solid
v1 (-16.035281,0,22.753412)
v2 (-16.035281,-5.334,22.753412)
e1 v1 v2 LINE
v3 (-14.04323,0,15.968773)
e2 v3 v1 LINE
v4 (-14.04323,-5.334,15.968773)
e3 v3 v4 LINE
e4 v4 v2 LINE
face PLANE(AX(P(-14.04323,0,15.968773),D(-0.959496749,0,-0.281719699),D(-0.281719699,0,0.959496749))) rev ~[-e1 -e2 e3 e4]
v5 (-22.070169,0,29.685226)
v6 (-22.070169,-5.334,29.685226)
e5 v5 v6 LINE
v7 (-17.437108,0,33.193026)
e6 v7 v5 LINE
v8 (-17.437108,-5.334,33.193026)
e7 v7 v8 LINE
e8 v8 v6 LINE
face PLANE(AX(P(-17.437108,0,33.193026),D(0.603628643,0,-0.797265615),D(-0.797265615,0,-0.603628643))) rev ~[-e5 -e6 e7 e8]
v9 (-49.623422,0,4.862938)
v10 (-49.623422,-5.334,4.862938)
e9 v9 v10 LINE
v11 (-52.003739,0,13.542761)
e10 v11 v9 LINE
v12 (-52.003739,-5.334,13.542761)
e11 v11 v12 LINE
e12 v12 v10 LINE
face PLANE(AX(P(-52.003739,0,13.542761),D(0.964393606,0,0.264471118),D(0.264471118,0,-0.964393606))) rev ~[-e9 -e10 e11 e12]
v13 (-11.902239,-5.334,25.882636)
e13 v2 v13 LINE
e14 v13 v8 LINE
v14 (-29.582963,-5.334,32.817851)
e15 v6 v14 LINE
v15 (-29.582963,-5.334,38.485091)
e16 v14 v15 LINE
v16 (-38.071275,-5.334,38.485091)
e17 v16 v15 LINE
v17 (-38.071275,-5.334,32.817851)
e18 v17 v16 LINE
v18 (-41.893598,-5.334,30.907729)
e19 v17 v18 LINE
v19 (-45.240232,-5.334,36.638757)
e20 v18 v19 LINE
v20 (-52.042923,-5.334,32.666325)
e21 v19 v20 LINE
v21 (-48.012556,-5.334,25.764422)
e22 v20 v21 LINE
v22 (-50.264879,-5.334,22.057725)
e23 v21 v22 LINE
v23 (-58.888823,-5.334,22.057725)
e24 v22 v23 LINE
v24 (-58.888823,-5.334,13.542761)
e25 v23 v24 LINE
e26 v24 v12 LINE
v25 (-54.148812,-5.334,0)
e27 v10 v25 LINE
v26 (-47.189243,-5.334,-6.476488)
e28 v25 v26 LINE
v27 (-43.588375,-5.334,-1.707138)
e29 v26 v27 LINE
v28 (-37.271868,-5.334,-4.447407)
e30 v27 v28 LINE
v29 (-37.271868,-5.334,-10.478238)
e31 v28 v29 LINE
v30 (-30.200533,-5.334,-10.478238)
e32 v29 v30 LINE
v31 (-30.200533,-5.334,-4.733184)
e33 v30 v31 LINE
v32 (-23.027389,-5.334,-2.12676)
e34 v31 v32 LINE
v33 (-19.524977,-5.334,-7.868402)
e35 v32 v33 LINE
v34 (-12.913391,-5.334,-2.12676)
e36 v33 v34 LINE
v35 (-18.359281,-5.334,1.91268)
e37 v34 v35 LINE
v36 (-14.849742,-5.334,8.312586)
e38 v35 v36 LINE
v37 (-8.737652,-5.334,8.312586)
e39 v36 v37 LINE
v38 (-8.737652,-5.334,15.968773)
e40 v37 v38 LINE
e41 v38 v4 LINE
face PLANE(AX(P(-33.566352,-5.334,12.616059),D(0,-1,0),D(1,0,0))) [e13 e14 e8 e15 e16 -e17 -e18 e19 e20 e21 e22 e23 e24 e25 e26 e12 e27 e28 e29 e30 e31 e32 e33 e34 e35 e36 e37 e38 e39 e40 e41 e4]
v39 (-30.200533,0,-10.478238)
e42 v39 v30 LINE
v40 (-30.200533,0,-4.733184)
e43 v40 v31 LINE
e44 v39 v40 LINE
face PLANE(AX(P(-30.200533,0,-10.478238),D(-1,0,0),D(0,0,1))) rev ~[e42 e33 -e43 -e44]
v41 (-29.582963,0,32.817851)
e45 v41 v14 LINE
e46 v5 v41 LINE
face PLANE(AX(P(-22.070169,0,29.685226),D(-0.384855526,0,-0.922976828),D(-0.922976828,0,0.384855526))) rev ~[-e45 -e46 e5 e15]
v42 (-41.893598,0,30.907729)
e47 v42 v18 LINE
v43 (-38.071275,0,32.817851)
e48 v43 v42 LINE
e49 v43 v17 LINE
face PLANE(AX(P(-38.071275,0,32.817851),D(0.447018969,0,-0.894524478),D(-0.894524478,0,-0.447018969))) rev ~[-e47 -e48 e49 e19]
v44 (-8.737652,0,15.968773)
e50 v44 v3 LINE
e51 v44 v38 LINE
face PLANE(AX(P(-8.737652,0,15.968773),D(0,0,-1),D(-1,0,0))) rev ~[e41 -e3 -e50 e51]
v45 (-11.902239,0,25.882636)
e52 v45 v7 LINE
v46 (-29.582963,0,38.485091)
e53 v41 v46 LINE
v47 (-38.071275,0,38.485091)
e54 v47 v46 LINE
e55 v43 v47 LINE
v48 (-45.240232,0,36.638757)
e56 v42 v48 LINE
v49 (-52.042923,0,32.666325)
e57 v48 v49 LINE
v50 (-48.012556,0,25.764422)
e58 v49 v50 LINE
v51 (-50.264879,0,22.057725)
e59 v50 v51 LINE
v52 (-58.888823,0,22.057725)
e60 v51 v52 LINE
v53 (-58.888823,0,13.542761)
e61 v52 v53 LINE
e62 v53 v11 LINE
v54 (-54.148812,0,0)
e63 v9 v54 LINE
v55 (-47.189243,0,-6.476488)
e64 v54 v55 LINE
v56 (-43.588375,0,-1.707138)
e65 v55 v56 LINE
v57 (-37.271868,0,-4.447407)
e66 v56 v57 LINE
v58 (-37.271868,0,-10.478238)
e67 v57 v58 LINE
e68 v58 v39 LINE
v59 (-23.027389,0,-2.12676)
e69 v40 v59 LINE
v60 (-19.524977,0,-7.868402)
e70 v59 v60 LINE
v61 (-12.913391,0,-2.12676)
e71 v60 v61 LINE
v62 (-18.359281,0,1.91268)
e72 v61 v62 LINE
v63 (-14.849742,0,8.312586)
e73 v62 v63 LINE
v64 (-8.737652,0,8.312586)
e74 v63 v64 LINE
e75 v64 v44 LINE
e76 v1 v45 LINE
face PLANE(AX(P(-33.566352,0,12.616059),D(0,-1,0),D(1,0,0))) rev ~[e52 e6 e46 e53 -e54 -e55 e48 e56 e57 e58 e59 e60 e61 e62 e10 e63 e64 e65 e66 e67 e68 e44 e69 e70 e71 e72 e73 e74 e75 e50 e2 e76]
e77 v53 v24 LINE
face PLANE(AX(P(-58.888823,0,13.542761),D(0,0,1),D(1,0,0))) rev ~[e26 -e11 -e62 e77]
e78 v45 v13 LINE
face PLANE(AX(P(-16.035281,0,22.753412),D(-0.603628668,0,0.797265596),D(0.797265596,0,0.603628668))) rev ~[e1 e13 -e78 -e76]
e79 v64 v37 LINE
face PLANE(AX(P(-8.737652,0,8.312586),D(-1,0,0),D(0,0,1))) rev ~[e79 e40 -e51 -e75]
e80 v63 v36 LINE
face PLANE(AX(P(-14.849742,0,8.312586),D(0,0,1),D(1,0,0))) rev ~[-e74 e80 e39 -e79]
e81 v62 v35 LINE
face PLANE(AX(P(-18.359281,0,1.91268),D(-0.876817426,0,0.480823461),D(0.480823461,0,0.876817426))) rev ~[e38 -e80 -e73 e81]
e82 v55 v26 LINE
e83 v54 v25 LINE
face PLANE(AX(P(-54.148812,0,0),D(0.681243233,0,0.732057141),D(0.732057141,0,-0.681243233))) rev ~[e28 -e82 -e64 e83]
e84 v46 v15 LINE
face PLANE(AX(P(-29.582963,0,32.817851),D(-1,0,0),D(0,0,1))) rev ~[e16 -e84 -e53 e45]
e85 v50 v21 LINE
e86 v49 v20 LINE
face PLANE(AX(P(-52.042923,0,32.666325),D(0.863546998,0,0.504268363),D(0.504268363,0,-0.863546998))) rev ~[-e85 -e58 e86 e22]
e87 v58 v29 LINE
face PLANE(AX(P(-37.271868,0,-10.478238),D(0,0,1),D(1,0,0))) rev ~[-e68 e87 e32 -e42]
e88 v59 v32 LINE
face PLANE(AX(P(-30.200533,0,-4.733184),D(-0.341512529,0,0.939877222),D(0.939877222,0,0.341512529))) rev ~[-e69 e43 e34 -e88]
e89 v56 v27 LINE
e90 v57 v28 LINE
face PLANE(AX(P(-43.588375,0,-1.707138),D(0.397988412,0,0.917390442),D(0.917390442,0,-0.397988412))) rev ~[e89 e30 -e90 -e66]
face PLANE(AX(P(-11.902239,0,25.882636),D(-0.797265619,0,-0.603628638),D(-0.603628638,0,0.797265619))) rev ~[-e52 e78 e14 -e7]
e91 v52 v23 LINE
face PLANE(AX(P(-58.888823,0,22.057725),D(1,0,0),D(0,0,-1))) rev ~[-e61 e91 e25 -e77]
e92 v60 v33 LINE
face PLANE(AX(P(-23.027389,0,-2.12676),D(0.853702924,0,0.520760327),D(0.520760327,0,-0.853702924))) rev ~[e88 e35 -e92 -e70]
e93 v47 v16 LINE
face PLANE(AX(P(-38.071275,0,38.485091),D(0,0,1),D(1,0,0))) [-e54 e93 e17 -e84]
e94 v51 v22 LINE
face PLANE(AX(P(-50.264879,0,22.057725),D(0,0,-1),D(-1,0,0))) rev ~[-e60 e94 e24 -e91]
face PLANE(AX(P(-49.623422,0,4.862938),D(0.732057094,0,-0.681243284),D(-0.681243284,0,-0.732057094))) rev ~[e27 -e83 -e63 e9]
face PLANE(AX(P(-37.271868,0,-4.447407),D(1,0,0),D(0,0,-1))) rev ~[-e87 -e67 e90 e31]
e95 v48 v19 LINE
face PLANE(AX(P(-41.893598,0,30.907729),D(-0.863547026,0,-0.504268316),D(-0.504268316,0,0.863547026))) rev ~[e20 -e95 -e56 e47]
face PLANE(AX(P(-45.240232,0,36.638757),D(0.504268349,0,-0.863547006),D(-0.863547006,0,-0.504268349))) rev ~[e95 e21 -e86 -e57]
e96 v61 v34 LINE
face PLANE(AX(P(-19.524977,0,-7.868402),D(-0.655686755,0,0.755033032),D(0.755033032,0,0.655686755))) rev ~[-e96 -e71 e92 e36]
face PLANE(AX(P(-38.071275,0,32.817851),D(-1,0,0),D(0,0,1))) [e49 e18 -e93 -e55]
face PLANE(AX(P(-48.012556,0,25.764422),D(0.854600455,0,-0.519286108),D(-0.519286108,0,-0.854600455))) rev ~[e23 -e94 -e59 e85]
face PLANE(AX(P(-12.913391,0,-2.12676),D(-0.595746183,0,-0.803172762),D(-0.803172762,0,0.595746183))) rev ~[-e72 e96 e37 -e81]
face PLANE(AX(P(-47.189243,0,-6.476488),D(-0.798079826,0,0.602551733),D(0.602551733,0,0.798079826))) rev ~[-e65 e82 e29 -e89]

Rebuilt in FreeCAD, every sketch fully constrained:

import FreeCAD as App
import Part
import Sketcher
from FreeCAD import Vector
Q = App.Units.Quantity


def add_polygon(sketch, points):
    """Adds a closed chain of lines whose ends are joined by coincident constraints."""
    first, n = sketch.GeometryCount, len(points)
    for a, b in zip(points, points[1:] + points[:1]):
        sketch.addGeometry(Part.LineSegment(App.Vector(*a, 0), App.Vector(*b, 0)), False)
    for i in range(n):
        sketch.addConstraint(Sketcher.Constraint("Coincident", first + i, 2, first + (i + 1) % n, 1))

doc = App.newDocument("Part")
body = doc.addObject("PartDesign::Body", "Body")

sketch1 = doc.addObject("Sketcher::SketchObject", "Sketch")
body.addObject(sketch1)
sketch1.AttachmentSupport = (doc.XZ_Plane, [""])
sketch1.MapMode = "FlatFace"
add_polygon(sketch1, [(-22.070169, 29.685226), (-29.582963, 32.817851), (-29.582963, 38.485091), (-38.071275, 38.485091), (-38.071275, 32.817851), (-41.893598, 30.907729), (-45.240232, 36.638757), (-52.042923, 32.666325), (-48.012556, 25.764422), (-50.264879, 22.057725), (-58.888823, 22.057725), (-58.888823, 13.542761), (-52.003739, 13.542761), (-49.623422, 4.862938), (-54.148812, 0), (-47.189243, -6.476488), (-43.588375, -1.707138), (-37.271868, -4.447407), (-37.271868, -10.478238), (-30.200533, -10.478238), (-30.200533, -4.733184), (-23.027389, -2.12676), (-19.524977, -7.868402), (-12.913391, -2.12676), (-18.359281, 1.91268), (-14.849742, 8.312586), (-8.737652, 8.312586), (-8.737652, 15.968773), (-14.04323, 15.968773), (-16.035281, 22.753412), (-11.902239, 25.882636), (-17.437108, 33.193026)])
sketch1.addConstraint([
    Sketcher.Constraint("Vertical", 1),
    Sketcher.Constraint("Horizontal", 2),
    Sketcher.Constraint("Vertical", 3),
    Sketcher.Constraint("Horizontal", 9),
    Sketcher.Constraint("Vertical", 10),
    Sketcher.Constraint("Horizontal", 11),
    Sketcher.Constraint("Vertical", 17),
    Sketcher.Constraint("Horizontal", 18),
    Sketcher.Constraint("Vertical", 19),
    Sketcher.Constraint("Horizontal", 25),
    Sketcher.Constraint("Vertical", 26),
    Sketcher.Constraint("Horizontal", 27),
    Sketcher.Constraint("PointOnObject", 13, 2, -1),
    Sketcher.Constraint("DistanceX", 21, 2, -1, 1, Q("0.7686999 in")),
    Sketcher.Constraint("Distance", 16, 6.885298),
    Sketcher.Constraint("Distance", 20, 7.632001),
    Sketcher.Constraint("DistanceX", 25, 1, 25, 2, 6.11209),
    Sketcher.Constraint("DistanceY", 1, 1, 1, 2, 5.66724),
    Sketcher.Constraint("DistanceY", 3, 2, 3, 1, 5.66724),
    Sketcher.Constraint("DistanceY", 17, 2, 17, 1, 6.030831),
    Sketcher.Constraint("DistanceY", 21, 2, -1, 1, 7.868402),
    Sketcher.Constraint("DistanceY", 8, 2, 6, 2, 10.6086),
    Sketcher.Constraint("DistanceX", 9, 2, 6, 2, 6.8459),
    Sketcher.Constraint("DistanceX", 10, 2, 12, 2, 9.265401),
    Sketcher.Constraint("DistanceY", 15, 2, 11, 2, 15.249899),
    Sketcher.Constraint("DistanceY", 17, 2, 15, 2, 8.7711),
    Sketcher.Constraint("DistanceY", 31, 2, 30, 2, 3.5078),
    Sketcher.Constraint("Distance", 12, 9.000291),
    Sketcher.Constraint("Distance", 13, 6.64284),
    Sketcher.Constraint("Distance", 15, 5.976031),
    Sketcher.Constraint("Distance", 23, 6.780471),
    Sketcher.Constraint("Distance", 28, 7.071039),
    Sketcher.Constraint("Distance", 29, 5.184022),
    Sketcher.Constraint("Distance", 30, 9.169328),
    Sketcher.Constraint("Distance", 31, 5.811189),
    Sketcher.Constraint("DistanceX", 2, 2, 2, 1, 8.488312),
    Sketcher.Constraint("DistanceX", 9, 2, 9, 1, 8.623944),
    Sketcher.Constraint("DistanceX", 11, 1, 11, 2, 6.885084),
    Sketcher.Constraint("DistanceX", 18, 1, 18, 2, 7.071335),
    Sketcher.Constraint("DistanceX", 27, 2, 27, 1, 5.305578),
    Sketcher.Constraint("DistanceY", 10, 2, 10, 1, 8.514964),
    Sketcher.Constraint("DistanceY", 19, 1, 19, 2, 5.745054),
    Sketcher.Constraint("DistanceY", 26, 1, 26, 2, 7.656187),
    Sketcher.Constraint("DistanceY", -1, 1, 0, 2, 32.817851),
    Sketcher.Constraint("DistanceY", -1, 1, 4, 2, 30.907729),
    Sketcher.Constraint("DistanceY", -1, 1, 7, 2, 25.764422),
    Sketcher.Constraint("DistanceX", 8, 2, -1, 1, 50.264879),
    Sketcher.Constraint("DistanceY", -1, 1, 10, 2, 13.542761),
    Sketcher.Constraint("DistanceX", 20, 2, -1, 1, 23.027389),
    Sketcher.Constraint("DistanceY", 20, 2, -1, 1, 2.12676),
    Sketcher.Constraint("DistanceX", 22, 2, -1, 1, 12.913391),
    Sketcher.Constraint("DistanceY", 22, 2, -1, 1, 2.12676),
    Sketcher.Constraint("DistanceX", 23, 2, -1, 1, 18.359281),
    Sketcher.Constraint("DistanceX", 27, 2, -1, 1, 14.04323),
    Sketcher.Constraint("DistanceX", 28, 2, -1, 1, 16.035281),
    Sketcher.Constraint("DistanceX", 29, 2, -1, 1, 11.902239),
    Sketcher.Constraint("DistanceX", 31, 2, -1, 1, 22.070169),
    Sketcher.Constraint("DistanceX", 5, 2, 1, 2, 15.657269),
    Sketcher.Constraint("DistanceX", 6, 2, 5, 2, 6.802691),
    Sketcher.Constraint("DistanceY", 6, 2, 5, 2, 3.972432),
    Sketcher.Constraint("DistanceX", 7, 2, 3, 2, 9.941281),
    Sketcher.Constraint("DistanceX", 8, 2, 4, 2, 8.371281),
    Sketcher.Constraint("DistanceX", 13, 2, 14, 2, 6.959569),
    Sketcher.Constraint("DistanceY", 19, 2, 24, 2, 13.04577),
])
pad1 = doc.addObject("PartDesign::Pad", "Pad")
body.addObject(pad1)
pad1.Profile = sketch1
pad1.Length = Q("0.21 in")

doc.recompute()
